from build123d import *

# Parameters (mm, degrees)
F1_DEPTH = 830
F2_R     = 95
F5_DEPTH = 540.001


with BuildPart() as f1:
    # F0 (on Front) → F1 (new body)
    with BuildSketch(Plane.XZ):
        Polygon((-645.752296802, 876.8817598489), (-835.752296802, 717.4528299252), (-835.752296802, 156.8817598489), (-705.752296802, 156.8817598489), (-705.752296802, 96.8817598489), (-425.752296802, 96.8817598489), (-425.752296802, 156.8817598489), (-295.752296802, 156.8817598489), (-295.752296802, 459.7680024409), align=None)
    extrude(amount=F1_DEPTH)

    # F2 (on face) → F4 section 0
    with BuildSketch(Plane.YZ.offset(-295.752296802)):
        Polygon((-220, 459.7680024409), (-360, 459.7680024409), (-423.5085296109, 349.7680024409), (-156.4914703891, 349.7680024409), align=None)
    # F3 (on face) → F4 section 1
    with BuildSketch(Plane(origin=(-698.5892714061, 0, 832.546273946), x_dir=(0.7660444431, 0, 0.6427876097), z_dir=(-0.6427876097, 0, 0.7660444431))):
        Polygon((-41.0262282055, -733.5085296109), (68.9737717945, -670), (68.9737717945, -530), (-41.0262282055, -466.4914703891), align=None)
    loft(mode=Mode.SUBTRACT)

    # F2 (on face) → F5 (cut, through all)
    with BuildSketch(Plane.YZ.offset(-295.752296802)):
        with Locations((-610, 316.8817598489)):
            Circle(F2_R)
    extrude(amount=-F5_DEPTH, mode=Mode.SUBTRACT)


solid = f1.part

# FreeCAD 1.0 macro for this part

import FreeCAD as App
import Part
import Sketcher

V = App.Vector
Q = App.Units.Quantity

doc = App.newDocument("Part")
params = doc.addObject("Spreadsheet::Sheet", "Params")
for row, (alias, value) in enumerate([
    ("sketch1_width", "130 mm"),
    ("sketch1_width2", "280 mm"),
    ("sketch1_height", "60 mm"),
    ("pad1_length", "830 mm"),
    ("sketch2_width", "140 mm"),
    ("sketch3_height", "140 mm"),
    ("sketch4_diameter", "190 mm"),
], start=1):
    params.set(f"A{row}", alias)
    params.set(f"B{row}", "=" + value)
    params.setAlias(f"B{row}", alias)

body = doc.addObject("PartDesign::Body", "Body")

# Sketch on XZ plane
sketch1 = body.newObject("Sketcher::SketchObject", "Sketch")
sketch1.AttachmentSupport = (doc.getObject("XZ_Plane"), [""])
sketch1.MapMode = "FlatFace"
sketch1.addGeometry(Part.LineSegment(V(-645.752297, 876.88176, 0), V(-835.752297, 717.45283, 0)), False)
sketch1.addGeometry(Part.LineSegment(V(-835.752297, 717.45283, 0), V(-835.752297, 156.88176, 0)), False)
sketch1.addGeometry(Part.LineSegment(V(-835.752297, 156.88176, 0), V(-705.752297, 156.88176, 0)), False)
sketch1.addGeometry(Part.LineSegment(V(-705.752297, 156.88176, 0), V(-705.752297, 96.88176, 0)), False)
sketch1.addGeometry(Part.LineSegment(V(-705.752297, 96.88176, 0), V(-425.752297, 96.88176, 0)), False)
sketch1.addGeometry(Part.LineSegment(V(-425.752297, 96.88176, 0), V(-425.752297, 156.88176, 0)), False)
sketch1.addGeometry(Part.LineSegment(V(-425.752297, 156.88176, 0), V(-295.752297, 156.88176, 0)), False)
sketch1.addGeometry(Part.LineSegment(V(-295.752297, 156.88176, 0), V(-295.752297, 459.768002, 0)), False)
sketch1.addGeometry(Part.LineSegment(V(-295.752297, 459.768002, 0), V(-645.752297, 876.88176, 0)), False)
sketch1.addConstraint(Sketcher.Constraint("Coincident", 0, 2, 1, 1))
sketch1.addConstraint(Sketcher.Constraint("Coincident", 1, 2, 2, 1))
sketch1.addConstraint(Sketcher.Constraint("Coincident", 2, 2, 3, 1))
sketch1.addConstraint(Sketcher.Constraint("Coincident", 3, 2, 4, 1))
sketch1.addConstraint(Sketcher.Constraint("Coincident", 4, 2, 5, 1))
sketch1.addConstraint(Sketcher.Constraint("Coincident", 5, 2, 6, 1))
sketch1.addConstraint(Sketcher.Constraint("Coincident", 6, 2, 7, 1))
sketch1.addConstraint(Sketcher.Constraint("Coincident", 7, 2, 8, 1))
sketch1.addConstraint(Sketcher.Constraint("Coincident", 8, 2, 0, 1))
sketch1.addConstraint(Sketcher.Constraint("Vertical", 1))
sketch1.addConstraint(Sketcher.Constraint("Horizontal", 2))
sketch1.addConstraint(Sketcher.Constraint("Vertical", 3))
sketch1.addConstraint(Sketcher.Constraint("Horizontal", 4))
sketch1.addConstraint(Sketcher.Constraint("Vertical", 5))
sketch1.addConstraint(Sketcher.Constraint("Horizontal", 6))
sketch1.addConstraint(Sketcher.Constraint("Vertical", 7))
sketch1.addConstraint(Sketcher.Constraint("Perpendicular", 0, 8))
sketch1.addConstraint(Sketcher.Constraint("Horizontal", 2, 2, 5, 2))
sketch1.addConstraint(Sketcher.Constraint("Equal", 2, 6))
sketch1.addConstraint(Sketcher.Constraint("DistanceX", 2, 1, 2, 2, Q("130 mm")))
sketch1.addConstraint(Sketcher.Constraint("DistanceX", 4, 1, 4, 2, Q("280 mm")))
sketch1.addConstraint(Sketcher.Constraint("DistanceY", 3, 2, 3, 1, Q("60 mm")))
sketch1.addConstraint(Sketcher.Constraint("Angle", 0, Q("-140 deg")))
sketch1.addConstraint(Sketcher.Constraint("DistanceX", 0, 2, 8, 2, Q("190 mm")))
sketch1.addConstraint(Sketcher.Constraint("DistanceY", 2, 2, 8, 2, Q("720 mm")))
sketch1.addConstraint(Sketcher.Constraint("DistanceY", -1, 1, 0, 2, Q("717.45283 mm")))
sketch1.addConstraint(Sketcher.Constraint("DistanceX", 0, 2, -1, 1, Q("835.752297 mm")))
sketch1.setExpression("Constraints[19]", "Params.sketch1_width")
sketch1.setExpression("Constraints[20]", "Params.sketch1_width2")
sketch1.setExpression("Constraints[21]", "Params.sketch1_height")
pad1 = body.newObject("PartDesign::Pad", "Pad")
pad1.Profile = sketch1
pad1.setExpression("Length", "Params.pad1_length")

# Sketch on YZ plane
sketch2 = body.newObject("Sketcher::SketchObject", "Sketch001")
sketch2.AttachmentSupport = (doc.getObject("YZ_Plane"), [""])
sketch2.MapMode = "FlatFace"
sketch2.AttachmentOffset = App.Placement(V(0, 0, -295.752297), App.Rotation())
sketch2.addGeometry(Part.LineSegment(V(-220, 459.768002, 0), V(-360, 459.768002, 0)), False)
sketch2.addGeometry(Part.LineSegment(V(-360, 459.768002, 0), V(-423.50853, 349.768002, 0)), False)
sketch2.addGeometry(Part.LineSegment(V(-423.50853, 349.768002, 0), V(-156.49147, 349.768002, 0)), False)
sketch2.addGeometry(Part.LineSegment(V(-156.49147, 349.768002, 0), V(-220, 459.768002, 0)), False)
sketch2.addConstraint(Sketcher.Constraint("Coincident", 0, 2, 1, 1))
sketch2.addConstraint(Sketcher.Constraint("Coincident", 1, 2, 2, 1))
sketch2.addConstraint(Sketcher.Constraint("Coincident", 2, 2, 3, 1))
sketch2.addConstraint(Sketcher.Constraint("Coincident", 3, 2, 0, 1))
sketch2.addConstraint(Sketcher.Constraint("Horizontal", 0))
sketch2.addConstraint(Sketcher.Constraint("Horizontal", 2))
sketch2.addConstraint(Sketcher.Constraint("Equal", 1, 3))
sketch2.addConstraint(Sketcher.Constraint("DistanceX", 0, 2, 0, 1, Q("140 mm")))
sketch2.addConstraint(Sketcher.Constraint("Angle", 1, Q("-120 deg")))
sketch2.addConstraint(Sketcher.Constraint("DistanceX", 0, 2, -1, 1, Q("360 mm")))
sketch2.addConstraint(Sketcher.Constraint("DistanceY", 1, 2, 0, 2, Q("110 mm")))
sketch2.addConstraint(Sketcher.Constraint("DistanceY", -1, 1, 0, 2, Q("459.768002 mm")))
sketch2.setExpression("Constraints[7]", "Params.sketch2_width")

# Sketch on an angled plane
sketch3 = body.newObject("Sketcher::SketchObject", "Sketch002")
sketch3.Placement = App.Placement(V(-698.589271, 0, 832.546274), App.Rotation(V(0.766044443, 0, 0.64278761), V(0, 1, 0), V(-0.64278761, 0, 0.766044443), "ZXY"))
sketch3.addGeometry(Part.LineSegment(V(-41.026228, -733.50853, 0), V(68.973772, -670, 0)), False)
sketch3.addGeometry(Part.LineSegment(V(68.973772, -670, 0), V(68.973772, -530, 0)), False)
sketch3.addGeometry(Part.LineSegment(V(68.973772, -530, 0), V(-41.026228, -466.491471, 0)), False)
sketch3.addGeometry(Part.LineSegment(V(-41.026228, -466.491471, 0), V(-41.026228, -733.50853, 0)), False)
sketch3.addConstraint(Sketcher.Constraint("Coincident", 0, 2, 1, 1))
sketch3.addConstraint(Sketcher.Constraint("Coincident", 1, 2, 2, 1))
sketch3.addConstraint(Sketcher.Constraint("Coincident", 2, 2, 3, 1))
sketch3.addConstraint(Sketcher.Constraint("Coincident", 3, 2, 0, 1))
sketch3.addConstraint(Sketcher.Constraint("Vertical", 1))
sketch3.addConstraint(Sketcher.Constraint("Vertical", 3))
sketch3.addConstraint(Sketcher.Constraint("Equal", 0, 2))
sketch3.addConstraint(Sketcher.Constraint("DistanceY", 1, 1, 1, 2, Q("140 mm")))
sketch3.addConstraint(Sketcher.Constraint("Angle", 0, Q("30 deg")))
sketch3.addConstraint(Sketcher.Constraint("DistanceY", 0, 2, -1, 1, Q("670 mm")))
sketch3.addConstraint(Sketcher.Constraint("DistanceX", 2, 2, 1, 2, Q("110 mm")))
sketch3.addConstraint(Sketcher.Constraint("DistanceX", -1, 1, 0, 2, Q("68.973772 mm")))
sketch3.setExpression("Constraints[7]", "Params.sketch3_height")

subtractiveloft = body.newObject("PartDesign::SubtractiveLoft", "SubtractiveLoft")
subtractiveloft.Profile = sketch2
subtractiveloft.Sections = [sketch3]

# Sketch on YZ plane
sketch4 = body.newObject("Sketcher::SketchObject", "Sketch003")
sketch4.AttachmentSupport = (doc.getObject("YZ_Plane"), [""])
sketch4.MapMode = "FlatFace"
sketch4.AttachmentOffset = App.Placement(V(0, 0, -295.752297), App.Rotation())
sketch4.addGeometry(Part.Circle(V(-610, 316.88176, 0), V(0, 0, 1), 95), False)
sketch4.addConstraint(Sketcher.Constraint("Diameter", 0, Q("190 mm")))
sketch4.addConstraint(Sketcher.Constraint("DistanceX", 0, 3, -1, 1, Q("610 mm")))
sketch4.addConstraint(Sketcher.Constraint("DistanceY", -1, 1, 0, 3, Q("316.88176 mm")))
sketch4.setExpression("Constraints[0]", "Params.sketch4_diameter")
pocket1 = body.newObject("PartDesign::Pocket", "Pocket")
pocket1.Profile = sketch4
pocket1.Type = "ThroughAll"

doc.recompute()
